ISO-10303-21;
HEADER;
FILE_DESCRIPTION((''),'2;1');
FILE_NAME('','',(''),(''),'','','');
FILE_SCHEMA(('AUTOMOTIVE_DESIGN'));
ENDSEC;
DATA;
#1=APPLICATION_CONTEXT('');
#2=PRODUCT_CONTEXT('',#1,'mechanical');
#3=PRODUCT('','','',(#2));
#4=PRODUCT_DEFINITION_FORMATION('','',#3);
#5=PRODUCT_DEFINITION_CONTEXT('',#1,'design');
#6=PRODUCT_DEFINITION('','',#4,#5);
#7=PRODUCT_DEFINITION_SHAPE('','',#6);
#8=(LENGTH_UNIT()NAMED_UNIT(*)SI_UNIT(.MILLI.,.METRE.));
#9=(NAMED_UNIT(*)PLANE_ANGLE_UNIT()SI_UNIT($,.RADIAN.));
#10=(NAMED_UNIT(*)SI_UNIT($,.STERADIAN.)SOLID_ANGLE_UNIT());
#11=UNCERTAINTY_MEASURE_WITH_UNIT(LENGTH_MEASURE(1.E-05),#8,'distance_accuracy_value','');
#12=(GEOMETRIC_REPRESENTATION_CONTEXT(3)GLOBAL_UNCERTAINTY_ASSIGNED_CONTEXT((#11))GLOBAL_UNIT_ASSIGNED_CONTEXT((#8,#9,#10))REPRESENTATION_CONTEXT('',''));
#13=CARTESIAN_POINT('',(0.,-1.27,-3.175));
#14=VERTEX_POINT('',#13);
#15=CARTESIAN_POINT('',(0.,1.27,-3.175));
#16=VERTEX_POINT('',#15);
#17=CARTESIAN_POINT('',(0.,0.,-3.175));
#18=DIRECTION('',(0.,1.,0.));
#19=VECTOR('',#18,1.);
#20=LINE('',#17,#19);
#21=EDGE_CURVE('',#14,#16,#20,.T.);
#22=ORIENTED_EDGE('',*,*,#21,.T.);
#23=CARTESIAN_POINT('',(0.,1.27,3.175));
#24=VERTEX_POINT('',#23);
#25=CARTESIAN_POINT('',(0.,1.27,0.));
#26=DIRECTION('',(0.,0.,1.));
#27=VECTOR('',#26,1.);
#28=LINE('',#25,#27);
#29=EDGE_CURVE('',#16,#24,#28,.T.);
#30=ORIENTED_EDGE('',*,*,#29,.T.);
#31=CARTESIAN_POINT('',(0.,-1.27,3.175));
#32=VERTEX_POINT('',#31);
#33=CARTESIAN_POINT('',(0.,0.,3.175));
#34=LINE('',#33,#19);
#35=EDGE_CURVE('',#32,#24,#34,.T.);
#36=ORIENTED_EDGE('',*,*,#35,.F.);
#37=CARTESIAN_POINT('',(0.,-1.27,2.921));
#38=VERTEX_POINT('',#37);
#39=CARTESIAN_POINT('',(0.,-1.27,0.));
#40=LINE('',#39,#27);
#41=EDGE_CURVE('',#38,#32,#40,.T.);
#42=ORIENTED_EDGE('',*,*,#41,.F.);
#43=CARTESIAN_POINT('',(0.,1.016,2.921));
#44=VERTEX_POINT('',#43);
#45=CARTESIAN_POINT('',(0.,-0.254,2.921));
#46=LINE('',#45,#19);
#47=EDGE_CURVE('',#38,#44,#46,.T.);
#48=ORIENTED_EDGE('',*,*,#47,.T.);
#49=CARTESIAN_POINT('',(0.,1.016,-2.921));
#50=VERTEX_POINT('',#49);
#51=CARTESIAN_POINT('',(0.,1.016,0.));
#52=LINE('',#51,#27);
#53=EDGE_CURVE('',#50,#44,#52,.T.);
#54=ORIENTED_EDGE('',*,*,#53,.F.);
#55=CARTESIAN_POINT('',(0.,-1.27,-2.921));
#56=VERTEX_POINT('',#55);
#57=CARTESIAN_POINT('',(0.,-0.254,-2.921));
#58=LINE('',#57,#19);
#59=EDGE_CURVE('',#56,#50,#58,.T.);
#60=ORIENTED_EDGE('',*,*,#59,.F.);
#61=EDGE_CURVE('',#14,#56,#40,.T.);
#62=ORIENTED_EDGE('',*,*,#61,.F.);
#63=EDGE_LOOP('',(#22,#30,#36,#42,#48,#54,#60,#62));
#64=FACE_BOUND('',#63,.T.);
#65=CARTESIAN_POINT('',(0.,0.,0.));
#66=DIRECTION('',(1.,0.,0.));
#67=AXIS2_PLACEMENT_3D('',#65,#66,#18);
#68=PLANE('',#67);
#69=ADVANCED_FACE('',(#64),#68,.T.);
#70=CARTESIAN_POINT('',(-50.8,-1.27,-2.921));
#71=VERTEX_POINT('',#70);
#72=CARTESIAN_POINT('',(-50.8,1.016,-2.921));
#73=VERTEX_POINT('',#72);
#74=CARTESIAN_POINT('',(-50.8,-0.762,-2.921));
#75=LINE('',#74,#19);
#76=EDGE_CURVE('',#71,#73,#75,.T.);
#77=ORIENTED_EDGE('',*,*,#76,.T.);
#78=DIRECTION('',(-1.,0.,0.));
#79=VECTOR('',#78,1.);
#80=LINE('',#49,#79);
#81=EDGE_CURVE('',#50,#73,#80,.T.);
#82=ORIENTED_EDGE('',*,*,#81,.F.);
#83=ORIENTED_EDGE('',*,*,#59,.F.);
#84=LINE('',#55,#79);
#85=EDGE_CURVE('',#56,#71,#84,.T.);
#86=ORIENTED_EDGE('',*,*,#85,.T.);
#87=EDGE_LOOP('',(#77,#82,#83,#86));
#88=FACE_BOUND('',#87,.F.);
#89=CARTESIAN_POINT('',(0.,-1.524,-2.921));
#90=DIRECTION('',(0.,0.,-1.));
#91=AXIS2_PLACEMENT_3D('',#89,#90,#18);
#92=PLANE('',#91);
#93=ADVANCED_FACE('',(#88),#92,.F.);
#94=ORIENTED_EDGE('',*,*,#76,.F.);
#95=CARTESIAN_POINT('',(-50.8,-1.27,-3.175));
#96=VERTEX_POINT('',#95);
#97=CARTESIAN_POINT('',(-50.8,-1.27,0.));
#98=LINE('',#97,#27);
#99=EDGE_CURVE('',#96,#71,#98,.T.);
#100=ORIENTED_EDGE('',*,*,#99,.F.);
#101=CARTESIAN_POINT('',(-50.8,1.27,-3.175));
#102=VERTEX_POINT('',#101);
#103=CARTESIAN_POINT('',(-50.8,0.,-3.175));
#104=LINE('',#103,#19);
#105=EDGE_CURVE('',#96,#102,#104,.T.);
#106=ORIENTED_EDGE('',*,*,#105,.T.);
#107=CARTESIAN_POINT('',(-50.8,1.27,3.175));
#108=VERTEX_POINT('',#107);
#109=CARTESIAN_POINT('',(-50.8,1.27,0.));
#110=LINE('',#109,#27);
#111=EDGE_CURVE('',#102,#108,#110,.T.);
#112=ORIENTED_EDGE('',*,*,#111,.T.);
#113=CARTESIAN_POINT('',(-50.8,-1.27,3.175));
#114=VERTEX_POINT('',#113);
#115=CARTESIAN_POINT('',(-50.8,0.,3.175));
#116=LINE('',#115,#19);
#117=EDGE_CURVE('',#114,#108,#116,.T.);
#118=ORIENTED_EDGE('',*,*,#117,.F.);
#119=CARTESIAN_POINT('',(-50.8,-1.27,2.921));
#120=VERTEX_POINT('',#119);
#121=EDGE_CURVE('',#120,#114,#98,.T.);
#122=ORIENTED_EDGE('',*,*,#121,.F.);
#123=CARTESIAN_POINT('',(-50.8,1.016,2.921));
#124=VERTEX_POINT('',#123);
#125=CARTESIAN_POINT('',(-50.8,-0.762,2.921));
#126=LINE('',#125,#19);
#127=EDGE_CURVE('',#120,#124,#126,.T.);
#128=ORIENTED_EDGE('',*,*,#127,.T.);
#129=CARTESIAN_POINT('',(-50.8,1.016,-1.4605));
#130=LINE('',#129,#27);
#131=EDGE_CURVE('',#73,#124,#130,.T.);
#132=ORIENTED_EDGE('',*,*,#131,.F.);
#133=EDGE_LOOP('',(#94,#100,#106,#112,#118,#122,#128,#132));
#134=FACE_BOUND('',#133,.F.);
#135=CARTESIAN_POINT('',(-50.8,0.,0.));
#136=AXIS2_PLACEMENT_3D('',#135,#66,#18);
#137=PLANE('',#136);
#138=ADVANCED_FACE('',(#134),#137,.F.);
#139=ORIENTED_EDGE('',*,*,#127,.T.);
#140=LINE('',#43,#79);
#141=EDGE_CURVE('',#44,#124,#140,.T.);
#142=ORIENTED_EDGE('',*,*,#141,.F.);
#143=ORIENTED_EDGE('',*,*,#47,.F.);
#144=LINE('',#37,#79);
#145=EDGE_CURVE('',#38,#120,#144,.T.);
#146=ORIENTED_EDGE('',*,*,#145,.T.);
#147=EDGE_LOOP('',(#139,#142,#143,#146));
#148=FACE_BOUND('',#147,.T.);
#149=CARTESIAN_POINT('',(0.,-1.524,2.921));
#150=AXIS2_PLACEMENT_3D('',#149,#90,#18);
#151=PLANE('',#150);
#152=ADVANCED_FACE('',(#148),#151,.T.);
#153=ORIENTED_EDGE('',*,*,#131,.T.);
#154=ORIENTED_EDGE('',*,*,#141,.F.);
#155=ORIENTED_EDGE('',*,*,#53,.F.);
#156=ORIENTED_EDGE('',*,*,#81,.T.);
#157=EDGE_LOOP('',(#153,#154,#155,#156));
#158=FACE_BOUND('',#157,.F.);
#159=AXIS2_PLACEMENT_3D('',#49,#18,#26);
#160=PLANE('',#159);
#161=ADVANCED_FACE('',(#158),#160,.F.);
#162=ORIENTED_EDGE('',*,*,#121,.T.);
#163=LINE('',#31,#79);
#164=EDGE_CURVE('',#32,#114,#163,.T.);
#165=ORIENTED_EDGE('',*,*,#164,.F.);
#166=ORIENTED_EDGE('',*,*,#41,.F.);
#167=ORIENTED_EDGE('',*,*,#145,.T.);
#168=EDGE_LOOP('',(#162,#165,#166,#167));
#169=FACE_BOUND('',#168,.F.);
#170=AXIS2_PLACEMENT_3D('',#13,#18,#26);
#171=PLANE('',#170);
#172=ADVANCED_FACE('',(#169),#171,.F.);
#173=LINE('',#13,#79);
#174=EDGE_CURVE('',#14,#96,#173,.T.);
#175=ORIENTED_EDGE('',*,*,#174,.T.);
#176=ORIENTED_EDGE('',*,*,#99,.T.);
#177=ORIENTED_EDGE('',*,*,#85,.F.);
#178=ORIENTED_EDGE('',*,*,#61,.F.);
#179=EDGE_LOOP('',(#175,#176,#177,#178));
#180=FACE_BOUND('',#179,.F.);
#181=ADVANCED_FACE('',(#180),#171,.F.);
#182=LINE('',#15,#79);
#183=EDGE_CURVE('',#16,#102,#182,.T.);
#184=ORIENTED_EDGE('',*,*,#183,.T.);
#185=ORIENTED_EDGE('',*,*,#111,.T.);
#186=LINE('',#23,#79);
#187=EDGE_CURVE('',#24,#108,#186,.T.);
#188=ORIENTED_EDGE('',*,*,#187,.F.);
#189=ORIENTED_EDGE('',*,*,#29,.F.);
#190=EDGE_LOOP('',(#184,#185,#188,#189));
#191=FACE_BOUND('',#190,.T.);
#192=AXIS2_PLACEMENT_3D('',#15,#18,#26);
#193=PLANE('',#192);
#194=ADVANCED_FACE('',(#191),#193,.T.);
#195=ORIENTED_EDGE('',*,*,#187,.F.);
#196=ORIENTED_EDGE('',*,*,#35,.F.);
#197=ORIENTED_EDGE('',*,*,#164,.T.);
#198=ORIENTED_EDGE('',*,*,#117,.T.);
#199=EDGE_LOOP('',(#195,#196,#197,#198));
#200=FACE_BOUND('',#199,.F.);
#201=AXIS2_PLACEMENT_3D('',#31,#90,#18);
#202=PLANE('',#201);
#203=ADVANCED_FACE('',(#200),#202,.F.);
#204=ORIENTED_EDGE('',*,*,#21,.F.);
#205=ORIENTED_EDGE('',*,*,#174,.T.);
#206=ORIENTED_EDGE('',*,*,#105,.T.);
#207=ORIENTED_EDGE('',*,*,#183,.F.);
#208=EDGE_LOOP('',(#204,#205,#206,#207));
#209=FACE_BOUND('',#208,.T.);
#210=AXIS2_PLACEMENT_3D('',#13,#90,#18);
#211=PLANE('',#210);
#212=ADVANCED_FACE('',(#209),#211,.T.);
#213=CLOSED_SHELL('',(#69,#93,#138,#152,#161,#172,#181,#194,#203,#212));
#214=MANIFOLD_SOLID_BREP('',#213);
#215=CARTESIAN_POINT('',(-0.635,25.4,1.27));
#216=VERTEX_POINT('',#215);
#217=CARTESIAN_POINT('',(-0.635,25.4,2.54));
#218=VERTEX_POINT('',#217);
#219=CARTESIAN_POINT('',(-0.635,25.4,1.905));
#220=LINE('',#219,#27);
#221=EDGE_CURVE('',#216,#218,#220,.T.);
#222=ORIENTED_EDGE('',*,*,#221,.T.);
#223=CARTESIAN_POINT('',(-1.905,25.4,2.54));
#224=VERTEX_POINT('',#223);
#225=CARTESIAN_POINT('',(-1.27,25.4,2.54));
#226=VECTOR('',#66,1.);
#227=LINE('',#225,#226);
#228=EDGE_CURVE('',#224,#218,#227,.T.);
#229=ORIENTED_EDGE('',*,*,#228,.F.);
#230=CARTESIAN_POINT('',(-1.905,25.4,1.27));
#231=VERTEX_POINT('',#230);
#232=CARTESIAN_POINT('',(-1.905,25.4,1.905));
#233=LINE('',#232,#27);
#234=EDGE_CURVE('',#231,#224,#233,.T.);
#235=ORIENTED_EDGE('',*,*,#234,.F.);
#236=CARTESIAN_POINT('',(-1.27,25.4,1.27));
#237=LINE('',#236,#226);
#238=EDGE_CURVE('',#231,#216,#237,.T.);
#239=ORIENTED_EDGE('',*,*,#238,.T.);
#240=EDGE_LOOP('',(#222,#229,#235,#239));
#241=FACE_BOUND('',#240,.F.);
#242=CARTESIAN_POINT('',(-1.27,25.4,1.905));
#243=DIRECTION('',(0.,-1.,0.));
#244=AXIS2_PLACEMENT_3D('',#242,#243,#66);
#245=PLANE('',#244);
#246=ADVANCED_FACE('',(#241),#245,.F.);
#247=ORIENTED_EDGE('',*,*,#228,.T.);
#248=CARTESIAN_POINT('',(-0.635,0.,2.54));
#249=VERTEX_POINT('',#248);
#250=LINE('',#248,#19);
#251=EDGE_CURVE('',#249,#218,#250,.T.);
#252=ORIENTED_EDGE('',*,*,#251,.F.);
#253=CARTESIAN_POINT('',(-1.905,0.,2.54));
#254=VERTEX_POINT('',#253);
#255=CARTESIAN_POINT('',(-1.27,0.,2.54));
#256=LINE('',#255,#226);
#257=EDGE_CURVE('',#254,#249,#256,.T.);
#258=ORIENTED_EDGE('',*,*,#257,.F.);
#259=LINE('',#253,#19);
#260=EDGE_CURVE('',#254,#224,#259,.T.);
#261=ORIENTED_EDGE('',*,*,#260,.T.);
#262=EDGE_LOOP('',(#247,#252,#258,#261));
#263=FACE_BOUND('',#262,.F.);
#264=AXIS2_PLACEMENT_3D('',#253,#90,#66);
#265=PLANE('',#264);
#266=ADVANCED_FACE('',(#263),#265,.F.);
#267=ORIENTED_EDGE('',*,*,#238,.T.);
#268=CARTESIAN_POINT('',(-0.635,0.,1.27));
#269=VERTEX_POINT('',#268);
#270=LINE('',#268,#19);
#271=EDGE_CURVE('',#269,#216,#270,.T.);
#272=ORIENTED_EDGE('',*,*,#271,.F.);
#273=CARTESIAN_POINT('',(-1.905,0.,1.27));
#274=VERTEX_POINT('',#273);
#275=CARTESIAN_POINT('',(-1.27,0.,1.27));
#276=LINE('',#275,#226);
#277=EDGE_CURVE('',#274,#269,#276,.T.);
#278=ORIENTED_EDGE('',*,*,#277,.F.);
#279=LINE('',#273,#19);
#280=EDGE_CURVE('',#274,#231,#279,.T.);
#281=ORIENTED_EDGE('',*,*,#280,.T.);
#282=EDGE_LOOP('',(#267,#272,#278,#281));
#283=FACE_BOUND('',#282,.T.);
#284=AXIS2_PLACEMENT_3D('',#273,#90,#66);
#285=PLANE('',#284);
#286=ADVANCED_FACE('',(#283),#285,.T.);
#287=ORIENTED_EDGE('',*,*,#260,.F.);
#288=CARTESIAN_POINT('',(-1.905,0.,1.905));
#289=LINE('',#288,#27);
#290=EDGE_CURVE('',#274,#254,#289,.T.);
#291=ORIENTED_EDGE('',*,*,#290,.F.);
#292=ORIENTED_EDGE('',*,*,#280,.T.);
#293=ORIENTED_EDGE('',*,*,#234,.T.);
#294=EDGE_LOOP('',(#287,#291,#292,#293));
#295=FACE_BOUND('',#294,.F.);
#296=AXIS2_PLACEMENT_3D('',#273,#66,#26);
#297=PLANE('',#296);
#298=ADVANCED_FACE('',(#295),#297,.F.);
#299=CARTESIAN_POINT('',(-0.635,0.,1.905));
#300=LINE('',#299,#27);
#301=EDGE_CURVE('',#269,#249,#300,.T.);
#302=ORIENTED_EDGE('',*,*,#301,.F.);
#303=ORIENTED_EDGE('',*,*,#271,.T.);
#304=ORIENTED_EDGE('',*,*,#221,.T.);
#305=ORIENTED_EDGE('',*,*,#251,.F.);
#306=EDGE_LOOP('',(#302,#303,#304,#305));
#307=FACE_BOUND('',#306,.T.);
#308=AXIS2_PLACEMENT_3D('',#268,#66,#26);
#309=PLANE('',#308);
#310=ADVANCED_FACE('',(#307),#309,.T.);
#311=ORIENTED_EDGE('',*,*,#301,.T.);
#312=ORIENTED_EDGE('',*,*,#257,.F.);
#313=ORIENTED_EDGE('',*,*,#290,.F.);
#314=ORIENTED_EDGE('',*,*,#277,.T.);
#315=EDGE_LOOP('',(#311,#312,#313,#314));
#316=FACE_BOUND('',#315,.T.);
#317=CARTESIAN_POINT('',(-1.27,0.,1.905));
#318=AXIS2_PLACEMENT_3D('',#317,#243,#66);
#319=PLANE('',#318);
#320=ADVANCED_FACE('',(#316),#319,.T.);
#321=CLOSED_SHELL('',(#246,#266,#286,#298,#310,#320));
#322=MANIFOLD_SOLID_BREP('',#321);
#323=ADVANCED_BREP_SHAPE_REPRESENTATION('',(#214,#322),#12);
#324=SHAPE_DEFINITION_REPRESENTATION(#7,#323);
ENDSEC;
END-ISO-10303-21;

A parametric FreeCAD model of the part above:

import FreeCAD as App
import Part
import Sketcher

V = App.Vector
Q = App.Units.Quantity

doc = App.newDocument("Part")
params = doc.addObject("Spreadsheet::Sheet", "Params")
for row, (alias, value) in enumerate([
    ("sketch1_width", "0.1 in"),
    ("sketch1_height", "0.25 in"),
    ("pad1_length", "2 in"),
    ("sketch2_width", "0.1 in"),
    ("sketch2_height", "0.23 in"),
    ("pocket1_length", "3 in"),
    ("sketch3_width", "0.05 in"),
    ("pad2_length", "1 in"),
], start=1):
    params.set(f"A{row}", alias)
    params.set(f"B{row}", "=" + value)
    params.setAlias(f"B{row}", alias)

body = doc.addObject("PartDesign::Body", "Body")

sketch1 = body.newObject("Sketcher::SketchObject", "Sketch")
sketch1.AttachmentSupport = (doc.getObject("YZ_Plane"), [""])
sketch1.MapMode = "FlatFace"
sketch1.addGeometry(Part.LineSegment(V(-1.3, 3.2, 0), V(-1.3, -3.2, 0)), False)
sketch1.addGeometry(Part.LineSegment(V(-1.3, -3.2, 0), V(1.3, -3.2, 0)), False)
sketch1.addGeometry(Part.LineSegment(V(1.3, -3.2, 0), V(1.3, 3.2, 0)), False)
sketch1.addGeometry(Part.LineSegment(V(1.3, 3.2, 0), V(-1.3, 3.2, 0)), False)
sketch1.addConstraint(Sketcher.Constraint("Coincident", 0, 2, 1, 1))
sketch1.addConstraint(Sketcher.Constraint("Coincident", 1, 2, 2, 1))
sketch1.addConstraint(Sketcher.Constraint("Coincident", 2, 2, 3, 1))
sketch1.addConstraint(Sketcher.Constraint("Coincident", 3, 2, 0, 1))
sketch1.addConstraint(Sketcher.Constraint("Vertical", 0))
sketch1.addConstraint(Sketcher.Constraint("Horizontal", 1))
sketch1.addConstraint(Sketcher.Constraint("Vertical", 2))
sketch1.addConstraint(Sketcher.Constraint("Horizontal", 3))
sketch1.addConstraint(Sketcher.Constraint("Symmetric", 0, 2, 2, 2, -1, 1))
sketch1.addConstraint(Sketcher.Constraint("DistanceX", 1, 1, 1, 2, Q("0.1 in")))
sketch1.addConstraint(Sketcher.Constraint("DistanceY", 0, 2, 0, 1, Q("0.25 in")))
sketch1.setExpression("Constraints[9]", "Params.sketch1_width")
sketch1.setExpression("Constraints[10]", "Params.sketch1_height")
pad1 = body.newObject("PartDesign::Pad", "Pad")
pad1.Profile = sketch1
pad1.setExpression("Length", "Params.pad1_length")
pad1.Reversed = True

sketch2 = body.newObject("Sketcher::SketchObject", "Sketch001")
sketch2.AttachmentSupport = (doc.getObject("YZ_Plane"), [""])
sketch2.MapMode = "FlatFace"
sketch2.addGeometry(Part.LineSegment(V(-1.5, 2.9, 0), V(-1.5, -2.9, 0)), False)
sketch2.addGeometry(Part.LineSegment(V(-1.5, -2.9, 0), V(1, -2.9, 0)), False)
sketch2.addGeometry(Part.LineSegment(V(1, -2.9, 0), V(1, 2.9, 0)), False)
sketch2.addGeometry(Part.LineSegment(V(1, 2.9, 0), V(-1.5, 2.9, 0)), False)
sketch2.addConstraint(Sketcher.Constraint("Coincident", 0, 2, 1, 1))
sketch2.addConstraint(Sketcher.Constraint("Coincident", 1, 2, 2, 1))
sketch2.addConstraint(Sketcher.Constraint("Coincident", 2, 2, 3, 1))
sketch2.addConstraint(Sketcher.Constraint("Coincident", 3, 2, 0, 1))
sketch2.addConstraint(Sketcher.Constraint("Vertical", 0))
sketch2.addConstraint(Sketcher.Constraint("Horizontal", 1))
sketch2.addConstraint(Sketcher.Constraint("Vertical", 2))
sketch2.addConstraint(Sketcher.Constraint("Horizontal", 3))
sketch2.addConstraint(Sketcher.Constraint("DistanceX", 1, 1, 1, 2, Q("0.1 in")))
sketch2.addConstraint(Sketcher.Constraint("DistanceY", 0, 2, 0, 1, Q("0.23 in")))
sketch2.addConstraint(Sketcher.Constraint("DistanceX", 0, 2, -1, 1, Q("0.06 in")))
sketch2.addConstraint(Sketcher.Constraint("DistanceY", 0, 2, -1, 1, Q("0.115 in")))
sketch2.setExpression("Constraints[8]", "Params.sketch2_width")
sketch2.setExpression("Constraints[9]", "Params.sketch2_height")
pocket1 = body.newObject("PartDesign::Pocket", "Pocket")
pocket1.Profile = sketch2
pocket1.setExpression("Length", "Params.pocket1_length")
body2 = doc.addObject("PartDesign::Body", "Body001")

sketch3 = body2.newObject("Sketcher::SketchObject", "Sketch002")
sketch3.AttachmentSupport = (doc.getObject("XZ_Plane001"), [""])
sketch3.MapMode = "FlatFace"
sketch3.addGeometry(Part.LineSegment(V(-1.9, 2.5, 0), V(-1.9, 1.3, 0)), False)
sketch3.addGeometry(Part.LineSegment(V(-1.9, 1.3, 0), V(-0.6, 1.3, 0)), False)
sketch3.addGeometry(Part.LineSegment(V(-0.6, 1.3, 0), V(-0.6, 2.5, 0)), False)
sketch3.addGeometry(Part.LineSegment(V(-0.6, 2.5, 0), V(-1.9, 2.5, 0)), False)
sketch3.addConstraint(Sketcher.Constraint("Coincident", 0, 2, 1, 1))
sketch3.addConstraint(Sketcher.Constraint("Coincident", 1, 2, 2, 1))
sketch3.addConstraint(Sketcher.Constraint("Coincident", 2, 2, 3, 1))
sketch3.addConstraint(Sketcher.Constraint("Coincident", 3, 2, 0, 1))
sketch3.addConstraint(Sketcher.Constraint("Vertical", 0))
sketch3.addConstraint(Sketcher.Constraint("Horizontal", 1))
sketch3.addConstraint(Sketcher.Constraint("Vertical", 2))
sketch3.addConstraint(Sketcher.Constraint("Horizontal", 3))
sketch3.addConstraint(Sketcher.Constraint("Equal", 3, 0))
sketch3.addConstraint(Sketcher.Constraint("DistanceX", 1, 1, 1, 2, Q("0.05 in")))
sketch3.addConstraint(Sketcher.Constraint("DistanceY", -1, 1, 2, 2, Q("0.1 in")))
sketch3.addConstraint(Sketcher.Constraint("DistanceX", 0, 2, -1, 1, Q("0.075 in")))
sketch3.setExpression("Constraints[9]", "Params.sketch3_width")
pad2 = body2.newObject("PartDesign::Pad", "Pad001")
pad2.Profile = sketch3
pad2.setExpression("Length", "Params.pad2_length")
pad2.Reversed = True

doc.recompute()
